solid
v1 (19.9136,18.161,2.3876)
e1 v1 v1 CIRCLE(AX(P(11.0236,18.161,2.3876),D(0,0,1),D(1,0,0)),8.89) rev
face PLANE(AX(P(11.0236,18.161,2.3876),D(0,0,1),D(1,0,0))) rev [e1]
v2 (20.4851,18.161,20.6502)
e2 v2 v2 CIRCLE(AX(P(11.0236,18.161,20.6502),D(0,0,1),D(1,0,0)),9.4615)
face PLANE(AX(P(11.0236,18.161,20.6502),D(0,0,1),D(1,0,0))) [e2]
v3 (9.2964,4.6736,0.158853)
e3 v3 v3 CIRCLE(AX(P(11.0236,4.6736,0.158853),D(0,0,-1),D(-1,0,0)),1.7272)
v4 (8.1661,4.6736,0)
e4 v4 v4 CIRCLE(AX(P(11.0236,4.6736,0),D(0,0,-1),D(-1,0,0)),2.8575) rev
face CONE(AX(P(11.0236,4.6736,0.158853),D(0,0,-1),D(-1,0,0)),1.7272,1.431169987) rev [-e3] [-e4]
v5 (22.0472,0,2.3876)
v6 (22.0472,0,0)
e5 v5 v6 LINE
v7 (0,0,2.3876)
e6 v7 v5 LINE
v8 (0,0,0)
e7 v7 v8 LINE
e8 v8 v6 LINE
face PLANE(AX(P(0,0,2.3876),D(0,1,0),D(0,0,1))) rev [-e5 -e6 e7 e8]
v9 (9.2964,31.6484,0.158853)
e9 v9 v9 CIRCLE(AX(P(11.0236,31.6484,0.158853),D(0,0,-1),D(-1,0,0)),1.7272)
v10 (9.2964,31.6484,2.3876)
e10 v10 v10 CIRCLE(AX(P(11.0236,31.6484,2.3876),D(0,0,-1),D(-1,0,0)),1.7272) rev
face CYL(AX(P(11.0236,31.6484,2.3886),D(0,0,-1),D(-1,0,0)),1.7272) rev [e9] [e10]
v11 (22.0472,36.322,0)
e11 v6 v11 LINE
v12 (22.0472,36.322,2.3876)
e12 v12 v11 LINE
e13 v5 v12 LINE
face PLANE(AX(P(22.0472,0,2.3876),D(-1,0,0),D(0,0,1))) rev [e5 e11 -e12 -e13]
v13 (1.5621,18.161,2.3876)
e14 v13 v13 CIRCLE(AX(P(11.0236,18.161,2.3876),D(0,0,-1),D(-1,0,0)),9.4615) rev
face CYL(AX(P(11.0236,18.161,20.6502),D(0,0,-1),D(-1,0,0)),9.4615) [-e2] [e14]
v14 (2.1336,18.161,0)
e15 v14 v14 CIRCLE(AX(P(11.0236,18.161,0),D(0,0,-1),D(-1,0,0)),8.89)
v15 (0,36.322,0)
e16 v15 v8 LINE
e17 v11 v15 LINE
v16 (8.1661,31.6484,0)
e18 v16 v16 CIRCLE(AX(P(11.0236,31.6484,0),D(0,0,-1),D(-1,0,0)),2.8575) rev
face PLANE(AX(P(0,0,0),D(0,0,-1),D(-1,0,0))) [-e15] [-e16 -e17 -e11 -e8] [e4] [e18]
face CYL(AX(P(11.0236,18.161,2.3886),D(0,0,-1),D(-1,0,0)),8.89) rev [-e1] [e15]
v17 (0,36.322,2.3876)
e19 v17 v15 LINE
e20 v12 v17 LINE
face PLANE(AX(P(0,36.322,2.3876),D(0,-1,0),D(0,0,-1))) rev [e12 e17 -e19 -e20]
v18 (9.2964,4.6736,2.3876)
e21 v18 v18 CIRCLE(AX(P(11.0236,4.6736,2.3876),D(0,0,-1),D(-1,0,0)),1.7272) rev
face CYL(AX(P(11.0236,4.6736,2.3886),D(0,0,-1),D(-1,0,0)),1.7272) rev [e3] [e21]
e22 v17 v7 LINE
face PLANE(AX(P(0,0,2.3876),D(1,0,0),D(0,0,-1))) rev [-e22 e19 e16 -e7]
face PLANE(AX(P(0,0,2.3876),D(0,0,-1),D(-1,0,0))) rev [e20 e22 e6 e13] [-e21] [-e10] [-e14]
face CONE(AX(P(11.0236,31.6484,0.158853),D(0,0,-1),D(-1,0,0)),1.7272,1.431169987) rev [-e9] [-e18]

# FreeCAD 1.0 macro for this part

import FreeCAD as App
import Part
import Sketcher

V = App.Vector
Q = App.Units.Quantity


def edges_at(feature, points):
    """Names of the edges that pass closest to the given points."""
    edges = feature.Shape.Edges
    near = lambda p: min(range(len(edges)), key=lambda i: edges[i].distToShape(Part.Vertex(*p))[0])
    return sorted({f"Edge{near(p) + 1}" for p in points})


def add_polygon(sketch, points):
    """Adds a closed chain of lines whose ends are joined by coincident constraints."""
    first, n = sketch.GeometryCount, len(points)
    for a, b in zip(points, points[1:] + points[:1]):
        sketch.addGeometry(Part.LineSegment(App.Vector(*a, 0), App.Vector(*b, 0)), False)
    for i in range(n):
        sketch.addConstraint(Sketcher.Constraint("Coincident", first + i, 2, first + (i + 1) % n, 1))

doc = App.newDocument("Part")
body = doc.addObject("PartDesign::Body", "Body")

# Sketch on XY plane
sketch1 = body.newObject("Sketcher::SketchObject", "Sketch")
sketch1.AttachmentSupport = (doc.getObject("XY_Plane"), [""])
sketch1.MapMode = "FlatFace"
add_polygon(sketch1, [(0, 36), (0, 0), (22, 0), (22, 36)])  # lines 0-3
sketch1.addConstraint([
    Sketcher.Constraint("Vertical", 0),
    Sketcher.Constraint("Horizontal", 1),
    Sketcher.Constraint("Vertical", 2),
    Sketcher.Constraint("Horizontal", 3),
    Sketcher.Constraint("Coincident", 0, 2, -1, 1),
    Sketcher.Constraint("DistanceY", 0, 2, 0, 1, Q("1.43 in")),
    Sketcher.Constraint("DistanceX", 1, 1, 1, 2, Q("0.868 in")),
])
pad1 = body.newObject("PartDesign::Pad", "Pad")
pad1.Profile = sketch1
pad1.Length = Q("0.094 in")

# Sketch on XY plane
sketch2 = body.newObject("Sketcher::SketchObject", "Sketch001")
sketch2.AttachmentSupport = (doc.getObject("XY_Plane"), [""])
sketch2.MapMode = "FlatFace"
sketch2.addGeometry(Part.Circle(V(11, 31.6, 0), V(0, 0, 1), 1.7), False)
sketch2.addConstraint([
    Sketcher.Constraint("Diameter", 0, Q("0.136 in")),
    Sketcher.Constraint("DistanceX", -1, 1, 0, 3, Q("0.434 in")),
    Sketcher.Constraint("DistanceY", -1, 1, 0, 3, Q("1.246 in")),
])
pocket1 = body.newObject("PartDesign::Pocket", "Pocket")
pocket1.Profile = sketch2
pocket1.Type = "UpToFirst"
pocket1.Reversed = True

# Sketch on XY plane
sketch3 = body.newObject("Sketcher::SketchObject", "Sketch002")
sketch3.AttachmentSupport = (doc.getObject("XY_Plane"), [""])
sketch3.MapMode = "FlatFace"
sketch3.addGeometry(Part.Circle(V(11, 4.7, 0), V(0, 0, 1), 1.7), False)
sketch3.addConstraint([
    Sketcher.Constraint("Diameter", 0, Q("0.136 in")),
    Sketcher.Constraint("DistanceX", -1, 1, 0, 3, Q("0.434 in")),
    Sketcher.Constraint("DistanceY", -1, 1, 0, 3, Q("0.184 in")),
])
pocket2 = body.newObject("PartDesign::Pocket", "Pocket001")
pocket2.Profile = sketch3
pocket2.Type = "UpToFirst"
pocket2.Reversed = True

# Sketch on XY plane
sketch4 = body.newObject("Sketcher::SketchObject", "Sketch003")
sketch4.AttachmentSupport = (doc.getObject("XY_Plane"), [""])
sketch4.MapMode = "FlatFace"
sketch4.addGeometry(Part.Circle(V(11, 18, 0), V(0, 0, 1), 9), False)
sketch4.addConstraint([
    Sketcher.Constraint("Diameter", 0, Q("0.7 in")),
    Sketcher.Constraint("DistanceX", -1, 1, 0, 3, Q("0.434 in")),
    Sketcher.Constraint("DistanceY", -1, 1, 0, 3, Q("0.715 in")),
])
pocket3 = body.newObject("PartDesign::Pocket", "Pocket002")
pocket3.Profile = sketch4
pocket3.Type = "UpToFirst"
pocket3.Reversed = True

# Sketch on XY plane
sketch5 = body.newObject("Sketcher::SketchObject", "Sketch004")
sketch5.AttachmentSupport = (doc.getObject("XY_Plane"), [""])
sketch5.MapMode = "FlatFace"
sketch5.AttachmentOffset = App.Placement(V(0, 0, 0.094 * 25.4), App.Rotation())
sketch5.addGeometry(Part.Circle(V(11, 18, 0), V(0, 0, 1), 9), False)
sketch5.addConstraint([
    Sketcher.Constraint("Diameter", 0, Q("0.745 in")),
    Sketcher.Constraint("DistanceX", -1, 1, 0, 3, Q("0.434 in")),
    Sketcher.Constraint("DistanceY", -1, 1, 0, 3, Q("0.715 in")),
])
pad2 = body.newObject("PartDesign::Pad", "Pad001")
pad2.Profile = sketch5
pad2.Length = Q("0.719 in")
doc.recompute()

chamfer = body.newObject("PartDesign::Chamfer", "Chamfer")
chamfer.Base = (pad2, edges_at(pad2, [(12.751, 31.648, 0), (12.751, 4.674, 0)]))
chamfer.ChamferType = "Two distances"
chamfer.Size = Q("0.0445 in")
chamfer.Size2 = 0.158853

doc.recompute()
